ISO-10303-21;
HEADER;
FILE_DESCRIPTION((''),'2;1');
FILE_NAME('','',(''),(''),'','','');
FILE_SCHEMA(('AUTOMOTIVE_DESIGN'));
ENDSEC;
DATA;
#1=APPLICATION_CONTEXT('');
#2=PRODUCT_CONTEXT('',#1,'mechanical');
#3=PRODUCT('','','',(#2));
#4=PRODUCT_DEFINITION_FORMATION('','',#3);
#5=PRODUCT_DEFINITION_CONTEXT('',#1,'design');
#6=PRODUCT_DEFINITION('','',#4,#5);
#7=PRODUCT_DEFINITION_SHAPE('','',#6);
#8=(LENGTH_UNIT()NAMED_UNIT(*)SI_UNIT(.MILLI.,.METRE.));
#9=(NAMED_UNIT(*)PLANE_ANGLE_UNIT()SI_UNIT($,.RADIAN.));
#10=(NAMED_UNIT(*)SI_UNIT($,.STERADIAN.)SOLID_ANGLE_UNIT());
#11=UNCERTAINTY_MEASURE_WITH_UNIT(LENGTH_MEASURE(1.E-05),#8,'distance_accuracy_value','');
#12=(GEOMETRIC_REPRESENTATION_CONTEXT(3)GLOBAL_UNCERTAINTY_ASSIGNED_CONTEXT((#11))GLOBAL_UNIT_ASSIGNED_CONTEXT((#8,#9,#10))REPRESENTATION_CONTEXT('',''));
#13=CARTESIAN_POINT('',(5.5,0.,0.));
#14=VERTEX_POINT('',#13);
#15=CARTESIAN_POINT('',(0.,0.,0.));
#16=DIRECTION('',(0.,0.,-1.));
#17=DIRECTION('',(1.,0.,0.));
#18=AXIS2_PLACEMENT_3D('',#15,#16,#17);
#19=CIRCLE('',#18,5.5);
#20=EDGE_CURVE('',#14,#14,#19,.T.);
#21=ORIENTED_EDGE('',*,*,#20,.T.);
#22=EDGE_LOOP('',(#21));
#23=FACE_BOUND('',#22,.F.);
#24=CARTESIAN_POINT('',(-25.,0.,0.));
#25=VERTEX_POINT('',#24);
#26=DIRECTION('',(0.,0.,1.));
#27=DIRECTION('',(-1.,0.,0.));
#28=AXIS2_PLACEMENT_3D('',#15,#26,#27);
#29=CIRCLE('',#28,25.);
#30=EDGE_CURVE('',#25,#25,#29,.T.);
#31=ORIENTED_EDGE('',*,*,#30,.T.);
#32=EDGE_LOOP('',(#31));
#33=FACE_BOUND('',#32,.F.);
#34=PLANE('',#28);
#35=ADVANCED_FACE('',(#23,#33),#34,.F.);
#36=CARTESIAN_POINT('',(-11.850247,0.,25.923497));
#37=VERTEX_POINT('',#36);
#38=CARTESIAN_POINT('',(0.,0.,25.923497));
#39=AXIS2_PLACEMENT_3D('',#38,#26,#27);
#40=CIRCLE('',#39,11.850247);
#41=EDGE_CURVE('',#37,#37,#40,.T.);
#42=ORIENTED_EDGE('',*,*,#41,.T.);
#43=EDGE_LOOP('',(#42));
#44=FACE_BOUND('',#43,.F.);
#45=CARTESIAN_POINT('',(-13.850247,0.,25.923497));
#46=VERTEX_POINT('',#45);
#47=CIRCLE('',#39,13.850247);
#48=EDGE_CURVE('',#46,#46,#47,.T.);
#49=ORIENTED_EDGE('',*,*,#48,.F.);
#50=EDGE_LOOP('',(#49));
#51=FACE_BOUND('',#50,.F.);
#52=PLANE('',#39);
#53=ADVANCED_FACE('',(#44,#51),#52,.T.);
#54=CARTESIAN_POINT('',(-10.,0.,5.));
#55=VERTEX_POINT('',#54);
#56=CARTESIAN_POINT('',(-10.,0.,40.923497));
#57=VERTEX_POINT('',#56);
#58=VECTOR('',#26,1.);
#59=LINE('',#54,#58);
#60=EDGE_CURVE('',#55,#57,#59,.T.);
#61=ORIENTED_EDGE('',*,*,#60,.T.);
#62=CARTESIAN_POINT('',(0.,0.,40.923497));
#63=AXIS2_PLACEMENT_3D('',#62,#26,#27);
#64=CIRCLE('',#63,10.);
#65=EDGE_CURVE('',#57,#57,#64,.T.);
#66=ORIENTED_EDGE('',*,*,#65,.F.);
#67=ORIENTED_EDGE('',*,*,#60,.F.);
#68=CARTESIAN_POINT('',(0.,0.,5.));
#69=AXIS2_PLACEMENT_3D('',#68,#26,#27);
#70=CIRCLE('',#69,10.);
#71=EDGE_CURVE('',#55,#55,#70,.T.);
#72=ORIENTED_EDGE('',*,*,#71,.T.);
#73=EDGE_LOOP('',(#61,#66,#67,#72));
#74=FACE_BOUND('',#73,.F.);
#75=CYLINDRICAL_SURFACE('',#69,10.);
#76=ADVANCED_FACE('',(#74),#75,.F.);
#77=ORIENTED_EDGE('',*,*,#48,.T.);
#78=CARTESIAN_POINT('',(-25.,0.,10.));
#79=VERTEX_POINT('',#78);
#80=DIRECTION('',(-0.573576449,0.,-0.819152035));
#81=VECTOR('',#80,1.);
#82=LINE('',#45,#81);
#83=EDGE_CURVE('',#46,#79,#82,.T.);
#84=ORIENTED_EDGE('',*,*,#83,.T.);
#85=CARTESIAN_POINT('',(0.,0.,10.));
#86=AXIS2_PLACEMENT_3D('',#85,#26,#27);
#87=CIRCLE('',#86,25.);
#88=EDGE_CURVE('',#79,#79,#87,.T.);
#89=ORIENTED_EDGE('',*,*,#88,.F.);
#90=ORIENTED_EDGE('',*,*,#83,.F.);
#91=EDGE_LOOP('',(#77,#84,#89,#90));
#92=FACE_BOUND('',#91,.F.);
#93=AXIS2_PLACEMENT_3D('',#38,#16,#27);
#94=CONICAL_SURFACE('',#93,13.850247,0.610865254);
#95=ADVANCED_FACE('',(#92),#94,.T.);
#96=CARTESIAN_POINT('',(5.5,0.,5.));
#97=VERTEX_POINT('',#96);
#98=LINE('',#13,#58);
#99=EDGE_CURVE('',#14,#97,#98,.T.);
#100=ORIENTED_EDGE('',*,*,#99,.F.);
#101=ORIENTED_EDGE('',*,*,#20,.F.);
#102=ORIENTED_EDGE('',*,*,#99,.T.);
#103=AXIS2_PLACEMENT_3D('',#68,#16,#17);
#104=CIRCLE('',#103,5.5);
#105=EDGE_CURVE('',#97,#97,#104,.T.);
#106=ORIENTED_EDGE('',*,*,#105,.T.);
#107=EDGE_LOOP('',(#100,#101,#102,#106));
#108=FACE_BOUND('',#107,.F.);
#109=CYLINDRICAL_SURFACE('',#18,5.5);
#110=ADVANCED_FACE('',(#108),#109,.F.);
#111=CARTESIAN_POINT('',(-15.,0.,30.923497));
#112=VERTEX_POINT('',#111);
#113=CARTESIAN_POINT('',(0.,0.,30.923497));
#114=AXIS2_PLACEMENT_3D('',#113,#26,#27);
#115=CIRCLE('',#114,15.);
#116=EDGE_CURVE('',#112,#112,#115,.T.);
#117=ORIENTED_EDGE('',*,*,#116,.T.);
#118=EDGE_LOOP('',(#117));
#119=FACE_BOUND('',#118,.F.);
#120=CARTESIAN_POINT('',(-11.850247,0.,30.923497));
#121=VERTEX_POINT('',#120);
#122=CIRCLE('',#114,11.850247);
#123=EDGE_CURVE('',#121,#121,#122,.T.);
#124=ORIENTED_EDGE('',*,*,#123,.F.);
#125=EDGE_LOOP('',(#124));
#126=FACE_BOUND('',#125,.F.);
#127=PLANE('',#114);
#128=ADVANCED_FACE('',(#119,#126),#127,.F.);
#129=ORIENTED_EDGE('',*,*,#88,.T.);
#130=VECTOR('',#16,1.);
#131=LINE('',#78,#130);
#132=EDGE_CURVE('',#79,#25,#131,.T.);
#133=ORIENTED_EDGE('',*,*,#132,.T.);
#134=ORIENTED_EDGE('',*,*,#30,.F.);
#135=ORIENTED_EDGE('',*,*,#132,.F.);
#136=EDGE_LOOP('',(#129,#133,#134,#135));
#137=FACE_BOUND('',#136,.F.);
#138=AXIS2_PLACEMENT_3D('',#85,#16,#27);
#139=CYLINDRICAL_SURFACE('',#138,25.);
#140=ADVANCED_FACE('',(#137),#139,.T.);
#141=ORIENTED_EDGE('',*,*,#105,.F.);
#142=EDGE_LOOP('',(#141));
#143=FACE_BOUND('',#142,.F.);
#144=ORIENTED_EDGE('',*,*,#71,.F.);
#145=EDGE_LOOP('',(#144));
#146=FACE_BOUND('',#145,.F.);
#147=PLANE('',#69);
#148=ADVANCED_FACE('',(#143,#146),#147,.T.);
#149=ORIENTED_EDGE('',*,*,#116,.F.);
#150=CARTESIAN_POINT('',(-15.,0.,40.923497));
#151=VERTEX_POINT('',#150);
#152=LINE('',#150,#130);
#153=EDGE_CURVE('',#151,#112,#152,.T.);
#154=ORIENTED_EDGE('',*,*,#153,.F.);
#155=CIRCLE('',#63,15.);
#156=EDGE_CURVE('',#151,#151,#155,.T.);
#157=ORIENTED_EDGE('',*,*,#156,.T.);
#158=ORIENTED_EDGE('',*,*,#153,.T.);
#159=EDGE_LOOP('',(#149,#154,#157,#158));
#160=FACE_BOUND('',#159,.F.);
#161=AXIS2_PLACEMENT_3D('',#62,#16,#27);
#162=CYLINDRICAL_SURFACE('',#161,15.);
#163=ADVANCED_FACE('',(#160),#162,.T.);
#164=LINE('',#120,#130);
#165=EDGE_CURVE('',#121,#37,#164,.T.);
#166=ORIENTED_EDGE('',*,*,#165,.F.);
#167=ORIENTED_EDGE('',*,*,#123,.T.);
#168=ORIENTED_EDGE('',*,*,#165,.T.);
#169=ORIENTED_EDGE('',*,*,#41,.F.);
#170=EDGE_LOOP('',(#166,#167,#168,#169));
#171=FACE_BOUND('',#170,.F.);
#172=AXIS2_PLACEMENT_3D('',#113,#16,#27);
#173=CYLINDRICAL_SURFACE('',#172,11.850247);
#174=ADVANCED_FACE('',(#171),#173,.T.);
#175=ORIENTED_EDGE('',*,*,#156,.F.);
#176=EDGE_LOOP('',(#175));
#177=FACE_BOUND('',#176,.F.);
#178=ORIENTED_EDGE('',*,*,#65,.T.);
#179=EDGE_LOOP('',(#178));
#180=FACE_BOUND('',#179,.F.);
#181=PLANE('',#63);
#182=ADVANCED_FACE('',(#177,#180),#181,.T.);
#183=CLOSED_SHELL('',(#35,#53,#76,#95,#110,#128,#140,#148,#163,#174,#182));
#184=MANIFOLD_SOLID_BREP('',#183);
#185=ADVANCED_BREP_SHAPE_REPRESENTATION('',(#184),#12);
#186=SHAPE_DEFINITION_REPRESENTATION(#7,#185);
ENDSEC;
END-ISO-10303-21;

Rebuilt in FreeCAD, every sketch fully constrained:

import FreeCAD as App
import Part
import Sketcher
Q = App.Units.Quantity


def add_polygon(sketch, points):
    """Adds a closed chain of lines whose ends are joined by coincident constraints."""
    first, n = sketch.GeometryCount, len(points)
    for a, b in zip(points, points[1:] + points[:1]):
        sketch.addGeometry(Part.LineSegment(App.Vector(*a, 0), App.Vector(*b, 0)), False)
    for i in range(n):
        sketch.addConstraint(Sketcher.Constraint("Coincident", first + i, 2, first + (i + 1) % n, 1))

doc = App.newDocument("Part")
body = doc.addObject("PartDesign::Body", "Body")

# Sketch on XZ plane
sketch1 = body.newObject("Sketcher::SketchObject", "Sketch")
sketch1.AttachmentSupport = (doc.getObject("XZ_Plane"), [""])
sketch1.MapMode = "FlatFace"
add_polygon(sketch1, [(-25, 0), (0, 0), (0, 5), (-10, 5), (-10, 40.9), (-15, 40.9), (-15, 30.9), (-11.9, 30.9), (-11.9, 25.9), (-13.9, 25.9), (-25, 10)])  # lines 0-10
sketch1.addConstraint([
    Sketcher.Constraint("Horizontal", 0),
    Sketcher.Constraint("Vertical", 1),
    Sketcher.Constraint("Horizontal", 2),
    Sketcher.Constraint("Vertical", 3),
    Sketcher.Constraint("Horizontal", 4),
    Sketcher.Constraint("Vertical", 5),
    Sketcher.Constraint("Horizontal", 6),
    Sketcher.Constraint("Vertical", 7),
    Sketcher.Constraint("Horizontal", 8),
    Sketcher.Constraint("Vertical", 10),
    Sketcher.Constraint("Coincident", 0, 2, -1, 1),
    Sketcher.Constraint("Equal", 4, 1),
    Sketcher.Constraint("Equal", 2, 5),
    Sketcher.Constraint("Equal", 1, 7),
    Sketcher.Constraint("Equal", 5, 10),
    Sketcher.Constraint("DistanceX", 0, 1, 0, 2, 25.0),
    Sketcher.Constraint("DistanceX", 2, 2, 2, 1, 10.0),
    Sketcher.Constraint("DistanceX", 4, 2, 4, 1, 5.0),
    Sketcher.Constraint("DistanceX", 8, 2, 8, 1, 2.0),
    Sketcher.Constraint("Angle", 9, Q("-125.000001 deg")),
    Sketcher.Constraint("Distance", 9, 19.439001),
])
revolution = body.newObject("PartDesign::Revolution", "Revolution")
revolution.Profile = sketch1
revolution.ReferenceAxis = (sketch1, ["V_Axis"])
revolution.Angle = 360

# Sketch on XY plane
sketch2 = body.newObject("Sketcher::SketchObject", "Sketch001")
sketch2.AttachmentSupport = (doc.getObject("XY_Plane"), [""])
sketch2.MapMode = "FlatFace"
sketch2.addGeometry(Part.Circle(App.Vector(0, 0, 0), App.Vector(0, 0, 1), 6), False)
sketch2.addConstraint([
    Sketcher.Constraint("Coincident", 0, 3, -1, 1),
    Sketcher.Constraint("Diameter", 0, 11.0),
])
pocket1 = body.newObject("PartDesign::Pocket", "Pocket")
pocket1.Profile = sketch2
pocket1.Length = 25
pocket1.Reversed = True

doc.recompute()
